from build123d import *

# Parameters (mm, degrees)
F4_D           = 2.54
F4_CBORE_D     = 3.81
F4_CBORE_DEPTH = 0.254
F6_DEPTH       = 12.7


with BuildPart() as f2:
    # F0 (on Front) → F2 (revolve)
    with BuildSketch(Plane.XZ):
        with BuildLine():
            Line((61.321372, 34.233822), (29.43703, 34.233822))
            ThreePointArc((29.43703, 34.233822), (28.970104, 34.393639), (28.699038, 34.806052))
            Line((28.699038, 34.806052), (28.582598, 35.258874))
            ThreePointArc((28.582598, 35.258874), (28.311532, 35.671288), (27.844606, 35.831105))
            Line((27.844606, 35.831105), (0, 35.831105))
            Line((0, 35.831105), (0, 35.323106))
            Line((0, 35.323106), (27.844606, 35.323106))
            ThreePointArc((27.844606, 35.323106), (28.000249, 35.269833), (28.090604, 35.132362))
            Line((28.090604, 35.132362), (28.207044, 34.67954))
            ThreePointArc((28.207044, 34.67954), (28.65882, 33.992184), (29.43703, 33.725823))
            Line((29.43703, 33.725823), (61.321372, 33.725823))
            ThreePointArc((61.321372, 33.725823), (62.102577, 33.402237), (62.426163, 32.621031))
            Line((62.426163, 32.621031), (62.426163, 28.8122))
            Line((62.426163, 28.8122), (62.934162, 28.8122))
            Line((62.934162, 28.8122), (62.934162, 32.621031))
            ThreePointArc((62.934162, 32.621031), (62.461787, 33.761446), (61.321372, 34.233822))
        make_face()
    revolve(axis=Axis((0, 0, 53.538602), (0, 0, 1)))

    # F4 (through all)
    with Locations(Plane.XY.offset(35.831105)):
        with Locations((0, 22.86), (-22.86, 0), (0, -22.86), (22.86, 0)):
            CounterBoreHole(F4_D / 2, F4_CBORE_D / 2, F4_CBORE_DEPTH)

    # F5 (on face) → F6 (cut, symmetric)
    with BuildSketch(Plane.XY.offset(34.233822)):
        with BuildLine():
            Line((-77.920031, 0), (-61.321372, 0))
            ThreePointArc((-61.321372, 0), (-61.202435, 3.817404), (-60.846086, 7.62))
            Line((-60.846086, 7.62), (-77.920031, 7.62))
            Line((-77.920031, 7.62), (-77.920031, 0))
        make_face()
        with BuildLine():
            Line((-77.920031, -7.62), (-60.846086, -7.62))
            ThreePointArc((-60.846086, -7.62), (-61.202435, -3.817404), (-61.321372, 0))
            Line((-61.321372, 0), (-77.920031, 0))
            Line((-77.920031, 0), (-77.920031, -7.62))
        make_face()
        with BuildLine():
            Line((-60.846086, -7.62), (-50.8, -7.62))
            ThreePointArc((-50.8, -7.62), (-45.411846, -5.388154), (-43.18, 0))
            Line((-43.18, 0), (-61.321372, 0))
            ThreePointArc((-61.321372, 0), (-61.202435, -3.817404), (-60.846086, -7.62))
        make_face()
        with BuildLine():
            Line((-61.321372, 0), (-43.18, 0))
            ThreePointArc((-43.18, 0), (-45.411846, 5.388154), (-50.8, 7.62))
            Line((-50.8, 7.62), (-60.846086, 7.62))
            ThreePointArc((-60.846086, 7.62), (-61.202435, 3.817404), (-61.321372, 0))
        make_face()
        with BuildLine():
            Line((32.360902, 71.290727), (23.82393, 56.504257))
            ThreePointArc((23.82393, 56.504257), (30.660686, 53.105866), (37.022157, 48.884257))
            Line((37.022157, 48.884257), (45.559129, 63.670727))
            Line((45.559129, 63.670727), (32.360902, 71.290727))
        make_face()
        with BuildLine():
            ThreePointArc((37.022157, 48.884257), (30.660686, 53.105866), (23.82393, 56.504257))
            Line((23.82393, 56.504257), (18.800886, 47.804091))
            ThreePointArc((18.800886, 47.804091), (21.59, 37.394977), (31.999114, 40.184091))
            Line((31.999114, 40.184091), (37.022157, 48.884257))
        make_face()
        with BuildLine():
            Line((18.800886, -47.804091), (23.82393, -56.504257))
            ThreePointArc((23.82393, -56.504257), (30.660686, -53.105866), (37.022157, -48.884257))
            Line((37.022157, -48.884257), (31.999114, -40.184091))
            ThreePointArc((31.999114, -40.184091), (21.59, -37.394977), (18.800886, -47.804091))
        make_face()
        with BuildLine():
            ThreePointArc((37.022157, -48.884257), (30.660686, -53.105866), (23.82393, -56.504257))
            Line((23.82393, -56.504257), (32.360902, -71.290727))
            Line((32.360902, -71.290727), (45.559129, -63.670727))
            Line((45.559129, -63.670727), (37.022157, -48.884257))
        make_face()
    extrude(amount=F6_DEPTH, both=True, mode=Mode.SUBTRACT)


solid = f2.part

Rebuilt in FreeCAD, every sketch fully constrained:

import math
import FreeCAD as App
import Part
import Sketcher

V = App.Vector
Q = App.Units.Quantity

doc = App.newDocument("Part")
body = doc.addObject("PartDesign::Body", "Body")

# Sketch on XZ plane
sketch1 = body.newObject("Sketcher::SketchObject", "Sketch")
sketch1.AttachmentSupport = (doc.getObject("XZ_Plane"), [""])
sketch1.MapMode = "FlatFace"
sketch1.addGeometry(Part.LineSegment(V(61.321372, 34.233822, 0), V(29.43703, 34.233822, 0)), False)
sketch1.addGeometry(Part.ArcOfCircle(Part.Circle(V(29.43703, 34.995823, 0), V(0, 0, 1), 0.762001), math.radians(-165.57913), math.radians(-89.999997)), False)
sketch1.addGeometry(Part.LineSegment(V(28.699038, 34.806052, 0), V(28.582598, 35.258874, 0)), False)
sketch1.addGeometry(Part.ArcOfCircle(Part.Circle(V(27.844606, 35.069105, 0), V(0, 0, 1), 0.762), math.radians(14.420758), math.radians(90.000018)), False)
sketch1.addGeometry(Part.LineSegment(V(27.844606, 35.831105, 0), V(0, 35.831105, 0)), False)
sketch1.addGeometry(Part.LineSegment(V(0, 35.831105, 0), V(0, 35.323106, 0)), False)
sketch1.addGeometry(Part.LineSegment(V(0, 35.323106, 0), V(27.844606, 35.323106, 0)), False)
sketch1.addGeometry(Part.ArcOfCircle(Part.Circle(V(27.844606, 35.069105, 0), V(0, 0, 1), 0.254001), math.radians(14.420858), math.radians(89.999971)), False)
sketch1.addGeometry(Part.LineSegment(V(28.090604, 35.132362, 0), V(28.207044, 34.67954, 0)), False)
sketch1.addGeometry(Part.ArcOfCircle(Part.Circle(V(29.437028, 34.99582, 0), V(0, 0, 1), 1.269997), math.radians(-165.579276), math.radians(-89.999901)), False)
sketch1.addGeometry(Part.LineSegment(V(29.43703, 33.725823, 0), V(61.321372, 33.725823, 0)), False)
sketch1.addGeometry(Part.ArcOfCircle(Part.Circle(V(61.321371, 32.621031, 0), V(0, 0, 1), 1.104792), math.radians(-0.000015), math.radians(89.999963)), False)
sketch1.addGeometry(Part.LineSegment(V(62.426163, 32.621031, 0), V(62.426163, 28.8122, 0)), False)
sketch1.addGeometry(Part.LineSegment(V(62.426163, 28.8122, 0), V(62.934162, 28.8122, 0)), False)
sketch1.addGeometry(Part.LineSegment(V(62.934162, 28.8122, 0), V(62.934162, 32.621031, 0)), False)
sketch1.addGeometry(Part.ArcOfCircle(Part.Circle(V(61.321371, 32.621031, 0), V(0, 0, 1), 1.612791), math.radians(-0.000006), math.radians(89.99997)), False)
sketch1.addConstraint(Sketcher.Constraint("Coincident", 0, 2, 1, 2))
sketch1.addConstraint(Sketcher.Constraint("Coincident", 1, 1, 2, 1))
sketch1.addConstraint(Sketcher.Constraint("Coincident", 2, 2, 3, 1))
sketch1.addConstraint(Sketcher.Constraint("Coincident", 3, 2, 4, 1))
sketch1.addConstraint(Sketcher.Constraint("Coincident", 4, 2, 5, 1))
sketch1.addConstraint(Sketcher.Constraint("Coincident", 5, 2, 6, 1))
sketch1.addConstraint(Sketcher.Constraint("Coincident", 6, 2, 7, 2))
sketch1.addConstraint(Sketcher.Constraint("Coincident", 7, 1, 8, 1))
sketch1.addConstraint(Sketcher.Constraint("Coincident", 8, 2, 9, 1))
sketch1.addConstraint(Sketcher.Constraint("Coincident", 9, 2, 10, 1))
sketch1.addConstraint(Sketcher.Constraint("Coincident", 10, 2, 11, 2))
sketch1.addConstraint(Sketcher.Constraint("Coincident", 11, 1, 12, 1))
sketch1.addConstraint(Sketcher.Constraint("Coincident", 12, 2, 13, 1))
sketch1.addConstraint(Sketcher.Constraint("Coincident", 13, 2, 14, 1))
sketch1.addConstraint(Sketcher.Constraint("Coincident", 14, 2, 15, 1))
sketch1.addConstraint(Sketcher.Constraint("Coincident", 15, 2, 0, 1))
sketch1.addConstraint(Sketcher.Constraint("Horizontal", 0))
sketch1.addConstraint(Sketcher.Constraint("Horizontal", 4))
sketch1.addConstraint(Sketcher.Constraint("Vertical", 5))
sketch1.addConstraint(Sketcher.Constraint("Horizontal", 6))
sketch1.addConstraint(Sketcher.Constraint("Horizontal", 10))
sketch1.addConstraint(Sketcher.Constraint("Vertical", 12))
sketch1.addConstraint(Sketcher.Constraint("Horizontal", 13))
sketch1.addConstraint(Sketcher.Constraint("Vertical", 14))
sketch1.addConstraint(Sketcher.Constraint("Coincident", 7, 3, 3, 3))
sketch1.addConstraint(Sketcher.Constraint("Coincident", 9, 3, 1, 3))
sketch1.addConstraint(Sketcher.Constraint("Coincident", 15, 3, 11, 3))
sketch1.addConstraint(Sketcher.Constraint("PointOnObject", 4, 2, -2))
sketch1.addConstraint(Sketcher.Constraint("Radius", 1, Q("0.03 in")))
sketch1.addConstraint(Sketcher.Constraint("Radius", 3, Q("0.03 in")))
sketch1.addConstraint(Sketcher.Constraint("Radius", 7, Q("0.01 in")))
sketch1.addConstraint(Sketcher.Constraint("Radius", 9, Q("0.0499999 in")))
sketch1.addConstraint(Sketcher.Constraint("Radius", 11, Q("1.104792 mm")))
sketch1.addConstraint(Sketcher.Constraint("DistanceX", 0, 2, 0, 1, Q("31.884342 mm")))
sketch1.addConstraint(Sketcher.Constraint("DistanceX", 10, 1, 10, 2, Q("31.884342 mm")))
sketch1.addConstraint(Sketcher.Constraint("DistanceY", 12, 2, 12, 1, Q("3.808831 mm")))
sketch1.addConstraint(Sketcher.Constraint("DistanceY", 14, 1, 14, 2, Q("3.808831 mm")))
sketch1.addConstraint(Sketcher.Constraint("DistanceX", -1, 1, 2, 2, Q("28.582598 mm")))
sketch1.addConstraint(Sketcher.Constraint("DistanceY", -1, 1, 12, 2, Q("28.8122 mm")))
sketch1.addConstraint(Sketcher.Constraint("DistanceX", 7, 3, 7, 1, Q("0.245998 mm")))
sketch1.addConstraint(Sketcher.Constraint("DistanceX", 6, 2, 7, 1, Q("0.245998 mm")))
sketch1.addConstraint(Sketcher.Constraint("DistanceX", 4, 2, 4, 1, Q("27.844606 mm")))
sketch1.addConstraint(Sketcher.Constraint("DistanceX", 6, 1, 6, 2, Q("27.844606 mm")))
sketch1.addConstraint(Sketcher.Constraint("DistanceX", -1, 1, 1, 3, Q("29.43703 mm")))
sketch1.addConstraint(Sketcher.Constraint("DistanceY", -1, 1, 9, 3, Q("34.99582 mm")))
sketch1.addConstraint(Sketcher.Constraint("DistanceX", -1, 1, 11, 3, Q("61.321371 mm")))
sketch1.addConstraint(Sketcher.Constraint("DistanceX", -1, 1, 0, 2, Q("29.43703 mm")))
sketch1.addConstraint(Sketcher.Constraint("DistanceX", -1, 1, 1, 1, Q("28.699038 mm")))
sketch1.addConstraint(Sketcher.Constraint("DistanceY", -1, 1, 8, 2, Q("34.67954 mm")))
sketch1.addConstraint(Sketcher.Constraint("DistanceX", -1, 1, 9, 2, Q("29.43703 mm")))
sketch1.addConstraint(Sketcher.Constraint("DistanceY", 1, 1, 2, 2, Q("0.452822 mm")))
revolution = body.newObject("PartDesign::Revolution", "Revolution")
revolution.Profile = sketch1
revolution.ReferenceAxis = (sketch1, ["V_Axis"])
revolution.Angle = 360

# Sketch on XY plane
sketch2 = body.newObject("Sketcher::SketchObject", "Sketch001")
sketch2.AttachmentSupport = (doc.getObject("XY_Plane"), [""])
sketch2.MapMode = "FlatFace"
sketch2.AttachmentOffset = App.Placement(V(0, 0, 35.831105), App.Rotation())
sketch2.addGeometry(Part.Circle(V(0, 22.9, 0), V(0, 0, 1), 1.3), False)
sketch2.addGeometry(Part.Circle(V(-22.9, 0, 0), V(0, 0, 1), 1.3), False)
sketch2.addGeometry(Part.Circle(V(0, -22.9, 0), V(0, 0, 1), 1.3), False)
sketch2.addGeometry(Part.Circle(V(22.9, 0, 0), V(0, 0, 1), 1.3), False)
sketch2.addConstraint(Sketcher.Constraint("Equal", 0, 1))
sketch2.addConstraint(Sketcher.Constraint("Equal", 1, 2))
sketch2.addConstraint(Sketcher.Constraint("Equal", 2, 3))
sketch2.addConstraint(Sketcher.Constraint("Symmetric", 0, 3, 2, 3, -1, 1))
sketch2.addConstraint(Sketcher.Constraint("Symmetric", 1, 3, 3, 3, -1, 1))
sketch2.addConstraint(Sketcher.Constraint("PointOnObject", 0, 3, -2))
sketch2.addConstraint(Sketcher.Constraint("PointOnObject", 1, 3, -1))
sketch2.addConstraint(Sketcher.Constraint("Diameter", 0, Q("0.1 in")))
sketch2.addConstraint(Sketcher.Constraint("DistanceY", -1, 1, 0, 3, Q("0.9 in")))
sketch2.addConstraint(Sketcher.Constraint("DistanceX", 1, 3, -1, 1, Q("0.9 in")))
doc.recompute()
hole = body.newObject("PartDesign::Hole", "Hole")
hole.Profile = sketch2
hole.ThreadType = "None"
hole.Diameter = Q("0.1 in")
hole.DepthType = "ThroughAll"
hole.HoleCutType = "Counterbore"
hole.HoleCutDiameter = Q("0.15 in")
hole.HoleCutDepth = Q("0.01 in")

# Sketch on XY plane
sketch3 = body.newObject("Sketcher::SketchObject", "Sketch002")
sketch3.AttachmentSupport = (doc.getObject("XY_Plane"), [""])
sketch3.MapMode = "FlatFace"
sketch3.AttachmentOffset = App.Placement(V(0, 0, 34.233822), App.Rotation())
sketch3.addGeometry(Part.LineSegment(V(-78, 8, 0), V(-78, -8, 0)), False)
sketch3.addGeometry(Part.LineSegment(V(-78, -8, 0), V(-51, -8, 0)), False)
sketch3.addGeometry(Part.ArcOfCircle(Part.Circle(V(-51, 0, 0), V(0, 0, 1), 8), math.radians(-90), math.radians(0)), False)
sketch3.addGeometry(Part.ArcOfCircle(Part.Circle(V(-51, 0, 0), V(0, 0, 1), 8), math.radians(0), math.radians(90)), False)
sketch3.addGeometry(Part.LineSegment(V(-51, 8, 0), V(-78, 8, 0)), False)
sketch3.addGeometry(Part.LineSegment(V(32, 71, 0), V(24, 57, 0)), False)
sketch3.addGeometry(Part.LineSegment(V(24, 57, 0), V(19, 48, 0)), False)
sketch3.addGeometry(Part.ArcOfCircle(Part.Circle(V(25, 44, 0), V(0, 0, 1), 8), math.radians(150), math.radians(330)), False)
sketch3.addGeometry(Part.LineSegment(V(32, 40, 0), V(37, 49, 0)), False)
sketch3.addGeometry(Part.LineSegment(V(37, 49, 0), V(46, 64, 0)), False)
sketch3.addGeometry(Part.LineSegment(V(46, 64, 0), V(32, 71, 0)), False)
sketch3.addGeometry(Part.LineSegment(V(19, -48, 0), V(24, -57, 0)), False)
sketch3.addGeometry(Part.LineSegment(V(24, -57, 0), V(32, -71, 0)), False)
sketch3.addGeometry(Part.LineSegment(V(32, -71, 0), V(46, -64, 0)), False)
sketch3.addGeometry(Part.LineSegment(V(46, -64, 0), V(37, -49, 0)), False)
sketch3.addGeometry(Part.LineSegment(V(37, -49, 0), V(32, -40, 0)), False)
sketch3.addGeometry(Part.ArcOfCircle(Part.Circle(V(25, -44, 0), V(0, 0, 1), 8), math.radians(30), math.radians(210)), False)
sketch3.addConstraint(Sketcher.Constraint("Coincident", 0, 2, 1, 1))
sketch3.addConstraint(Sketcher.Constraint("Tangent", 1, 2, 2, 1))
sketch3.addConstraint(Sketcher.Constraint("Tangent", 2, 2, 3, 1))
sketch3.addConstraint(Sketcher.Constraint("Tangent", 3, 2, 4, 1))
sketch3.addConstraint(Sketcher.Constraint("Coincident", 4, 2, 0, 1))
sketch3.addConstraint(Sketcher.Constraint("Coincident", 5, 2, 6, 1))
sketch3.addConstraint(Sketcher.Constraint("Tangent", 6, 2, 7, 1))
sketch3.addConstraint(Sketcher.Constraint("Tangent", 7, 2, 8, 1))
sketch3.addConstraint(Sketcher.Constraint("Coincident", 8, 2, 9, 1))
sketch3.addConstraint(Sketcher.Constraint("Coincident", 9, 2, 10, 1))
sketch3.addConstraint(Sketcher.Constraint("Coincident", 10, 2, 5, 1))
sketch3.addConstraint(Sketcher.Constraint("Coincident", 11, 2, 12, 1))
sketch3.addConstraint(Sketcher.Constraint("Coincident", 12, 2, 13, 1))
sketch3.addConstraint(Sketcher.Constraint("Coincident", 13, 2, 14, 1))
sketch3.addConstraint(Sketcher.Constraint("Coincident", 14, 2, 15, 1))
sketch3.addConstraint(Sketcher.Constraint("Tangent", 15, 2, 16, 1))
sketch3.addConstraint(Sketcher.Constraint("Tangent", 16, 2, 11, 1))
sketch3.addConstraint(Sketcher.Constraint("Vertical", 0))
sketch3.addConstraint(Sketcher.Constraint("Horizontal", 1))
sketch3.addConstraint(Sketcher.Constraint("Horizontal", 4))
sketch3.addConstraint(Sketcher.Constraint("Equal", 2, 3))
sketch3.addConstraint(Sketcher.Constraint("Equal", 3, 7))
sketch3.addConstraint(Sketcher.Constraint("Equal", 7, 16))
sketch3.addConstraint(Sketcher.Constraint("Symmetric", 7, 3, 16, 3, -1))
sketch3.addConstraint(Sketcher.Constraint("Symmetric", 5, 2, 11, 2, -1))
sketch3.addConstraint(Sketcher.Constraint("Symmetric", 10, 2, 12, 2, -1))
sketch3.addConstraint(Sketcher.Constraint("Symmetric", 9, 2, 13, 2, -1))
sketch3.addConstraint(Sketcher.Constraint("Symmetric", 8, 2, 14, 2, -1))
sketch3.addConstraint(Sketcher.Constraint("PointOnObject", 2, 3, -1))
sketch3.addConstraint(Sketcher.Constraint("PointOnObject", 2, 2, -1))
sketch3.addConstraint(Sketcher.Constraint("Parallel", 5, 6))
sketch3.addConstraint(Sketcher.Constraint("Parallel", 6, 8))
sketch3.addConstraint(Sketcher.Constraint("Parallel", 8, 9))
sketch3.addConstraint(Sketcher.Constraint("Perpendicular", 9, 10))
sketch3.addConstraint(Sketcher.Constraint("Equal", 6, 8))
sketch3.addConstraint(Sketcher.Constraint("Radius", 2, Q("0.3 in")))
sketch3.addConstraint(Sketcher.Constraint("DistanceX", 2, 3, -1, 1, Q("2 in")))
sketch3.addConstraint(Sketcher.Constraint("DistanceX", -1, 1, 7, 3, Q("1 in")))
sketch3.addConstraint(Sketcher.Constraint("Angle", 5, Q("-119.999999 deg")))
sketch3.addConstraint(Sketcher.Constraint("DistanceX", 1, 1, 1, 2, Q("27.120031 mm")))
sketch3.addConstraint(Sketcher.Constraint("DistanceX", 5, 2, 9, 2, Q("21.735199 mm")))
sketch3.addConstraint(Sketcher.Constraint("DistanceX", 1, 2, 12, 2, Q("83.160902 mm")))
sketch3.addConstraint(Sketcher.Constraint("DistanceY", -1, 1, 7, 3, Q("43.994091 mm")))
pocket1 = body.newObject("PartDesign::Pocket", "Pocket")
pocket1.Profile = sketch3
pocket1.Length = Q("1 in")
pocket1.Midplane = True

doc.recompute()
